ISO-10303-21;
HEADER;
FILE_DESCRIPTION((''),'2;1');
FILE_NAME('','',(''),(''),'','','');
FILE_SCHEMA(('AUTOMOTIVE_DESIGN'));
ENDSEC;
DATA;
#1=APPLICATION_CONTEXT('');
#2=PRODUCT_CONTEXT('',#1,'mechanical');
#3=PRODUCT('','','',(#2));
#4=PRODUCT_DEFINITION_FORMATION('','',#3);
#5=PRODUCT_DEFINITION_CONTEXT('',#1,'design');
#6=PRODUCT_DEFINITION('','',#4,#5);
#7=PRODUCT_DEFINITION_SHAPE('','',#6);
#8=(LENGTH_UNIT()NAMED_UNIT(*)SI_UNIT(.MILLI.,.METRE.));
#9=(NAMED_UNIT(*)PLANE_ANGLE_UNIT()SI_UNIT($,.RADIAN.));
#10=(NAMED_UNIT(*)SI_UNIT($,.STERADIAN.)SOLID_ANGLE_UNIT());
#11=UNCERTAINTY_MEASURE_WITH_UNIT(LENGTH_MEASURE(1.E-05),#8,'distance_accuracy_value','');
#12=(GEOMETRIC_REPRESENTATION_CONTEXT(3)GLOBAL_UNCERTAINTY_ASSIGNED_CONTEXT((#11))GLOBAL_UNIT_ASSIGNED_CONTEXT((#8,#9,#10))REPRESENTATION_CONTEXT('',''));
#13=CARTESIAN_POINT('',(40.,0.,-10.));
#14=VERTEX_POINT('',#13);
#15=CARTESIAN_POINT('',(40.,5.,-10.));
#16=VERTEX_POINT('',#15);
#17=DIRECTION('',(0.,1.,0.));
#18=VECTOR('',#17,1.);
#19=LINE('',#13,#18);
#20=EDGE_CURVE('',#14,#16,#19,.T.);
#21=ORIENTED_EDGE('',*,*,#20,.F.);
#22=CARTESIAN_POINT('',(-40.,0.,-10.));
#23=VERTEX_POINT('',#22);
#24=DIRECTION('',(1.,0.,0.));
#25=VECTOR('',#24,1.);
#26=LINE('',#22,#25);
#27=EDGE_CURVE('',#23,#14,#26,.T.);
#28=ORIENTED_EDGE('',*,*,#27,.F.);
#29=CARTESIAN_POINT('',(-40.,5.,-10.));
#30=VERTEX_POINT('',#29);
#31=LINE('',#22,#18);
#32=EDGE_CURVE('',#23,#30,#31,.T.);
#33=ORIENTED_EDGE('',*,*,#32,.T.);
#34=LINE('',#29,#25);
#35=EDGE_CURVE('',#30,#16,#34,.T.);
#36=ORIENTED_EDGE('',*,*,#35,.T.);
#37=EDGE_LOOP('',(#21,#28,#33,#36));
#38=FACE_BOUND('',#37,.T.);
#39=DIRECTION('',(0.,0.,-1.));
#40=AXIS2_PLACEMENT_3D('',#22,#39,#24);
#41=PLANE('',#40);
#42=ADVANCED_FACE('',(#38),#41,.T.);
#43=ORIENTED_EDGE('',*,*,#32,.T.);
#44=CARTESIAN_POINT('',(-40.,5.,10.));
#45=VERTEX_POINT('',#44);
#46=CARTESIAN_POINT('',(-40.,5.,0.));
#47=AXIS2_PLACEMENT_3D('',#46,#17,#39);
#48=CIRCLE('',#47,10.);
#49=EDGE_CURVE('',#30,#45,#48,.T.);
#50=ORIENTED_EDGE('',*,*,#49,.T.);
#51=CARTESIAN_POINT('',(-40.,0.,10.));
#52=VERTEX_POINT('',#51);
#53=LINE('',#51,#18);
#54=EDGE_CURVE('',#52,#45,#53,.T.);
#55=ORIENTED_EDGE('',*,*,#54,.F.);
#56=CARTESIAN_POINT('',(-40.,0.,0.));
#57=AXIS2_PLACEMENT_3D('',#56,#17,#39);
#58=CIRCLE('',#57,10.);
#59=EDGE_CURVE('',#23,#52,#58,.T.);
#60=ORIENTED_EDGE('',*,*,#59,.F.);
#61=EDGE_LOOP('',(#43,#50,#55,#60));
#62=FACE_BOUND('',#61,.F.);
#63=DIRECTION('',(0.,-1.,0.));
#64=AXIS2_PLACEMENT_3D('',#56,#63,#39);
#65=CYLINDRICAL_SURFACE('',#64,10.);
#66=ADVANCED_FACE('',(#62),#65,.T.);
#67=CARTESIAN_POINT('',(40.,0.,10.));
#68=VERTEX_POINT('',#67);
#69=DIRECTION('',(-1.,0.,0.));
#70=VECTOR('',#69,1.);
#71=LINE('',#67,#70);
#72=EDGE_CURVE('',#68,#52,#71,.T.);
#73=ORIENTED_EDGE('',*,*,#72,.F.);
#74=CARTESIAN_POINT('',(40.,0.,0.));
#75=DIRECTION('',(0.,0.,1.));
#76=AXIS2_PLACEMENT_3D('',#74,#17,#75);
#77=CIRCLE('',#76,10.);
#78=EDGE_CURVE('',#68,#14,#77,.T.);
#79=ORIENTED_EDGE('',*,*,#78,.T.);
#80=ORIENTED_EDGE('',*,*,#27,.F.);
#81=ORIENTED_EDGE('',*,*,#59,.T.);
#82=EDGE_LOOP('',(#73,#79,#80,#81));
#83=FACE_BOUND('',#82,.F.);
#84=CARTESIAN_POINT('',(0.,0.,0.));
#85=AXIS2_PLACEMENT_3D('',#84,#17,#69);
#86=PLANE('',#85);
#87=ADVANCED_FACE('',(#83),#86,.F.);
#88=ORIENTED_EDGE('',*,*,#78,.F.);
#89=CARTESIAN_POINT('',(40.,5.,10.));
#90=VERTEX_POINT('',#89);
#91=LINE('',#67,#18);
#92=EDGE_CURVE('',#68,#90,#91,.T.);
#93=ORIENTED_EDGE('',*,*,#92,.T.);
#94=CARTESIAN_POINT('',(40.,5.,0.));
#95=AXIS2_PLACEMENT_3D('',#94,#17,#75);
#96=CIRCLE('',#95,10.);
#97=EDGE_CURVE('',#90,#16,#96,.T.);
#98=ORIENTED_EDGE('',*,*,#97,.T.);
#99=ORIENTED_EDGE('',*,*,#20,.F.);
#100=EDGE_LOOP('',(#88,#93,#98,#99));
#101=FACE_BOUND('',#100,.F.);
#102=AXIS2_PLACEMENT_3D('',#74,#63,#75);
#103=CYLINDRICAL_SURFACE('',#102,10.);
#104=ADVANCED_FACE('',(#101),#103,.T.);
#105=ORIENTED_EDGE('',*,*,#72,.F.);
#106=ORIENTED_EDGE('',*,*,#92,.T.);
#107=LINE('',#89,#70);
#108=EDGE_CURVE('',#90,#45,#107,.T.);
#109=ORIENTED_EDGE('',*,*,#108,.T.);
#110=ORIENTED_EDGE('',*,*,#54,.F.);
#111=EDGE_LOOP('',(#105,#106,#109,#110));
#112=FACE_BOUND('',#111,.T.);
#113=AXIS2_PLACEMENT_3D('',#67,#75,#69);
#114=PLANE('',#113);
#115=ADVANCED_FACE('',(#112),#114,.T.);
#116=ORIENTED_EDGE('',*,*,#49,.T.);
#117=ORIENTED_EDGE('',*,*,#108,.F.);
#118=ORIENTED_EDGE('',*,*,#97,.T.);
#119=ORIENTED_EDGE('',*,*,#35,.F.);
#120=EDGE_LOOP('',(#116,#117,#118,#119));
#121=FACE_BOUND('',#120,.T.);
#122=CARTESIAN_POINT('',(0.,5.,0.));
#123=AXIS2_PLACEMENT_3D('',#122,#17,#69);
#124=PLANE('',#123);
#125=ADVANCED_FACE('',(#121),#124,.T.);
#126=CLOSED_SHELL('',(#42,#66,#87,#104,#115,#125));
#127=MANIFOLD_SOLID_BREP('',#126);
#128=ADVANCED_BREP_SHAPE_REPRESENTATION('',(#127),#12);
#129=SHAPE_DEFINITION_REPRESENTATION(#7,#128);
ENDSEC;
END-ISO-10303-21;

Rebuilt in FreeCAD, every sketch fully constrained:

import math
import FreeCAD as App
import Part
import Sketcher

V = App.Vector

doc = App.newDocument("Part")
params = doc.addObject("Spreadsheet::Sheet", "Params")
for row, (alias, value) in enumerate([
    ("sketch1_radius", "10 mm"),
    ("sketch1_width", "80 mm"),
    ("pad1_length", "5 mm"),
], start=1):
    params.set(f"A{row}", alias)
    params.set(f"B{row}", "=" + value)
    params.setAlias(f"B{row}", alias)

body = doc.addObject("PartDesign::Body", "Body")

sketch1 = body.newObject("Sketcher::SketchObject", "Sketch")
sketch1.AttachmentSupport = (doc.getObject("XZ_Plane"), [""])
sketch1.MapMode = "FlatFace"
sketch1.addGeometry(Part.LineSegment(V(40, -10, 0), V(-40, -10, 0)), False)
sketch1.addGeometry(Part.ArcOfCircle(Part.Circle(V(-40, 0, 0), V(0, 0, 1), 10), math.radians(90), math.radians(270)), False)
sketch1.addGeometry(Part.LineSegment(V(-40, 10, 0), V(40, 10, 0)), False)
sketch1.addGeometry(Part.ArcOfCircle(Part.Circle(V(40, 0, 0), V(0, 0, 1), 10), math.radians(-90), math.radians(90)), False)
sketch1.addConstraint(Sketcher.Constraint("Tangent", 0, 2, 1, 2))
sketch1.addConstraint(Sketcher.Constraint("Tangent", 1, 1, 2, 1))
sketch1.addConstraint(Sketcher.Constraint("Tangent", 2, 2, 3, 2))
sketch1.addConstraint(Sketcher.Constraint("Tangent", 3, 1, 0, 1))
sketch1.addConstraint(Sketcher.Constraint("Horizontal", 0))
sketch1.addConstraint(Sketcher.Constraint("Horizontal", 2))
sketch1.addConstraint(Sketcher.Constraint("Symmetric", 1, 3, 3, 3, -1, 1))
sketch1.addConstraint(Sketcher.Constraint("Radius", 1, 10.0))
sketch1.addConstraint(Sketcher.Constraint("DistanceX", 0, 2, 0, 1, 80.0))
sketch1.setExpression("Constraints[7]", "Params.sketch1_radius")
sketch1.setExpression("Constraints[8]", "Params.sketch1_width")
pad1 = body.newObject("PartDesign::Pad", "Pad")
pad1.Profile = sketch1
pad1.setExpression("Length", "Params.pad1_length")
pad1.Reversed = True

doc.recompute()
